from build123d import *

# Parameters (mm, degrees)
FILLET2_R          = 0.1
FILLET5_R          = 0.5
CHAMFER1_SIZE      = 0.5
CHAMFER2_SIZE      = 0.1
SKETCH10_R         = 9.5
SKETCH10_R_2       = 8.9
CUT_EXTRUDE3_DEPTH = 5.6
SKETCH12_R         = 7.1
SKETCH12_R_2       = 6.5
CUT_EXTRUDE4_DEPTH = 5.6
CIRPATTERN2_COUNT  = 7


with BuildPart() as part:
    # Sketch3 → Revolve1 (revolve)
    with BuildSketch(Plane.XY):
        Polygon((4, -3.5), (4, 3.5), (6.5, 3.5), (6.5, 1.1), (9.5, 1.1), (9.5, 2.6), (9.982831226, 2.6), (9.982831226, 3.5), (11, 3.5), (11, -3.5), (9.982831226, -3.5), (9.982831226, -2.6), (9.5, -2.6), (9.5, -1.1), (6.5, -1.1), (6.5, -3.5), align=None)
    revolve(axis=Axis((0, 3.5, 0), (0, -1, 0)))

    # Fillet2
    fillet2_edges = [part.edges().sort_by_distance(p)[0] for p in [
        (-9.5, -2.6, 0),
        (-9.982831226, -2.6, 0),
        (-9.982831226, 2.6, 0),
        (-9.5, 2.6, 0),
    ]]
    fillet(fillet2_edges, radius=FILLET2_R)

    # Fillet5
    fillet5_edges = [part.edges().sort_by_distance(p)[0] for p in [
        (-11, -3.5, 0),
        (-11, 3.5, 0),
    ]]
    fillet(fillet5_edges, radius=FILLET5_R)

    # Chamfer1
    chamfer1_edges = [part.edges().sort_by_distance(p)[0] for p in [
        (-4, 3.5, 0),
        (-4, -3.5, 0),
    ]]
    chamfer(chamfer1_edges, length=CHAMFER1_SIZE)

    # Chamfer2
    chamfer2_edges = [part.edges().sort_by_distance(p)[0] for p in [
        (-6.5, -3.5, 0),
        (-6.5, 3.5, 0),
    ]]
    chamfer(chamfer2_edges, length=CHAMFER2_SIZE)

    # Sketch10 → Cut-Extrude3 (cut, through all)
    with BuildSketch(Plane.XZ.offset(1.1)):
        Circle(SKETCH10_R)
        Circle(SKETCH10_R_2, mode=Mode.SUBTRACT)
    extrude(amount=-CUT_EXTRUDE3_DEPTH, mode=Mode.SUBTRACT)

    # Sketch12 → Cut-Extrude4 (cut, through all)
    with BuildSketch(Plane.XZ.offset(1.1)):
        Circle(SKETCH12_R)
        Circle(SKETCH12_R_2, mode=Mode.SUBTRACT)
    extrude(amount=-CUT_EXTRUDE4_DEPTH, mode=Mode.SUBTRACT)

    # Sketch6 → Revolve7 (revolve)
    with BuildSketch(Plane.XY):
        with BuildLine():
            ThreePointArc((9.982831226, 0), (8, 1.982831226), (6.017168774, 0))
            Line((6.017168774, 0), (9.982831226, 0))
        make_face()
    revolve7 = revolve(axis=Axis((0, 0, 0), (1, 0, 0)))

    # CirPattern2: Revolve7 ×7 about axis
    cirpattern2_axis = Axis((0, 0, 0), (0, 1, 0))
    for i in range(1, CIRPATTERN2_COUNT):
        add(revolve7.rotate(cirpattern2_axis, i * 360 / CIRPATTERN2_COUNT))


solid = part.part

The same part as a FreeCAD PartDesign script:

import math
import FreeCAD as App
import Part
import Sketcher

V = App.Vector
Q = App.Units.Quantity


def edges_at(feature, points):
    """Names of the edges that pass closest to the given points."""
    edges = feature.Shape.Edges
    near = lambda p: min(range(len(edges)), key=lambda i: edges[i].distToShape(Part.Vertex(*p))[0])
    return sorted({f"Edge{near(p) + 1}" for p in points})

doc = App.newDocument("Part")
body = doc.addObject("PartDesign::Body", "Body")
body.AllowCompound = True

# Sketch on XY plane
sketch1 = body.newObject("Sketcher::SketchObject", "Sketch")
sketch1.AttachmentSupport = (doc.getObject("XY_Plane"), [""])
sketch1.MapMode = "FlatFace"
sketch1.addGeometry(Part.LineSegment(V(4, 3.5, 0), V(4, -3.5, 0)), False)
sketch1.addGeometry(Part.LineSegment(V(4, -3.5, 0), V(6.5, -3.5, 0)), False)
sketch1.addGeometry(Part.LineSegment(V(6.5, -3.5, 0), V(6.5, -1.1, 0)), False)
sketch1.addGeometry(Part.LineSegment(V(6.5, -1.1, 0), V(9.5, -1.1, 0)), False)
sketch1.addGeometry(Part.LineSegment(V(9.5, -1.1, 0), V(9.5, -2.6, 0)), False)
sketch1.addGeometry(Part.LineSegment(V(9.5, -2.6, 0), V(9.982831, -2.6, 0)), False)
sketch1.addGeometry(Part.LineSegment(V(9.982831, -2.6, 0), V(9.982831, -3.5, 0)), False)
sketch1.addGeometry(Part.LineSegment(V(9.982831, -3.5, 0), V(11, -3.5, 0)), False)
sketch1.addGeometry(Part.LineSegment(V(11, -3.5, 0), V(11, 3.5, 0)), False)
sketch1.addGeometry(Part.LineSegment(V(11, 3.5, 0), V(9.982831, 3.5, 0)), False)
sketch1.addGeometry(Part.LineSegment(V(9.982831, 3.5, 0), V(9.982831, 2.6, 0)), False)
sketch1.addGeometry(Part.LineSegment(V(9.982831, 2.6, 0), V(9.5, 2.6, 0)), False)
sketch1.addGeometry(Part.LineSegment(V(9.5, 2.6, 0), V(9.5, 1.1, 0)), False)
sketch1.addGeometry(Part.LineSegment(V(9.5, 1.1, 0), V(6.5, 1.1, 0)), False)
sketch1.addGeometry(Part.LineSegment(V(6.5, 1.1, 0), V(6.5, 3.5, 0)), False)
sketch1.addGeometry(Part.LineSegment(V(6.5, 3.5, 0), V(4, 3.5, 0)), False)
sketch1.addConstraint(Sketcher.Constraint("Coincident", 0, 2, 1, 1))
sketch1.addConstraint(Sketcher.Constraint("Coincident", 1, 2, 2, 1))
sketch1.addConstraint(Sketcher.Constraint("Coincident", 2, 2, 3, 1))
sketch1.addConstraint(Sketcher.Constraint("Coincident", 3, 2, 4, 1))
sketch1.addConstraint(Sketcher.Constraint("Coincident", 4, 2, 5, 1))
sketch1.addConstraint(Sketcher.Constraint("Coincident", 5, 2, 6, 1))
sketch1.addConstraint(Sketcher.Constraint("Coincident", 6, 2, 7, 1))
sketch1.addConstraint(Sketcher.Constraint("Coincident", 7, 2, 8, 1))
sketch1.addConstraint(Sketcher.Constraint("Coincident", 8, 2, 9, 1))
sketch1.addConstraint(Sketcher.Constraint("Coincident", 9, 2, 10, 1))
sketch1.addConstraint(Sketcher.Constraint("Coincident", 10, 2, 11, 1))
sketch1.addConstraint(Sketcher.Constraint("Coincident", 11, 2, 12, 1))
sketch1.addConstraint(Sketcher.Constraint("Coincident", 12, 2, 13, 1))
sketch1.addConstraint(Sketcher.Constraint("Coincident", 13, 2, 14, 1))
sketch1.addConstraint(Sketcher.Constraint("Coincident", 14, 2, 15, 1))
sketch1.addConstraint(Sketcher.Constraint("Coincident", 15, 2, 0, 1))
sketch1.addConstraint(Sketcher.Constraint("Vertical", 0))
sketch1.addConstraint(Sketcher.Constraint("Horizontal", 1))
sketch1.addConstraint(Sketcher.Constraint("Vertical", 2))
sketch1.addConstraint(Sketcher.Constraint("Horizontal", 3))
sketch1.addConstraint(Sketcher.Constraint("Vertical", 4))
sketch1.addConstraint(Sketcher.Constraint("Horizontal", 5))
sketch1.addConstraint(Sketcher.Constraint("Vertical", 6))
sketch1.addConstraint(Sketcher.Constraint("Horizontal", 7))
sketch1.addConstraint(Sketcher.Constraint("Vertical", 8))
sketch1.addConstraint(Sketcher.Constraint("Horizontal", 9))
sketch1.addConstraint(Sketcher.Constraint("Vertical", 10))
sketch1.addConstraint(Sketcher.Constraint("Horizontal", 11))
sketch1.addConstraint(Sketcher.Constraint("Vertical", 12))
sketch1.addConstraint(Sketcher.Constraint("Horizontal", 13))
sketch1.addConstraint(Sketcher.Constraint("Vertical", 14))
sketch1.addConstraint(Sketcher.Constraint("Horizontal", 15))
sketch1.addConstraint(Sketcher.Constraint("Symmetric", 6, 2, 9, 2, -1))
sketch1.addConstraint(Sketcher.Constraint("Symmetric", 4, 2, 11, 2, -1))
sketch1.addConstraint(Sketcher.Constraint("Symmetric", 2, 2, 13, 2, -1))
sketch1.addConstraint(Sketcher.Constraint("Horizontal", 1, 2, 6, 2))
sketch1.addConstraint(Sketcher.Constraint("Horizontal", 9, 2, 14, 2))
sketch1.addConstraint(Sketcher.Constraint("DistanceX", 3, 1, 3, 2, Q("3 mm")))
sketch1.addConstraint(Sketcher.Constraint("DistanceY", 0, 2, 0, 1, Q("7 mm")))
sketch1.addConstraint(Sketcher.Constraint("DistanceX", 1, 1, 1, 2, Q("2.5 mm")))
sketch1.addConstraint(Sketcher.Constraint("DistanceY", 2, 1, 2, 2, Q("2.4 mm")))
sketch1.addConstraint(Sketcher.Constraint("DistanceY", 4, 2, 4, 1, Q("1.5 mm")))
sketch1.addConstraint(Sketcher.Constraint("DistanceX", -1, 1, 0, 2, Q("4 mm")))
sketch1.addConstraint(Sketcher.Constraint("DistanceX", -1, 1, 7, 2, Q("11 mm")))
sketch1.addConstraint(Sketcher.Constraint("DistanceX", 5, 1, 5, 2, Q("0.482831 mm")))
revolution = body.newObject("PartDesign::Revolution", "Revolution")
revolution.Profile = sketch1
revolution.ReferenceAxis = (sketch1, ["V_Axis"])
revolution.Angle = 360
doc.recompute()

fillet = body.newObject("PartDesign::Fillet", "Fillet")
fillet.Base = (revolution, edges_at(revolution, [
    (-9.5, -2.6, 0),
    (-9.983, -2.6, 0),
    (-9.983, 2.6, 0),
    (-9.5, 2.6, 0),
]))
fillet.Radius = 0.1
doc.recompute()

fillet2 = body.newObject("PartDesign::Fillet", "Fillet001")
fillet2.Base = (fillet, edges_at(fillet, [(-11, -3.5, 0), (-11, 3.5, 0)]))
fillet2.Radius = 0.5
doc.recompute()

chamfer = body.newObject("PartDesign::Chamfer", "Chamfer")
chamfer.Base = (fillet2, edges_at(fillet2, [(-4, 3.5, 0), (-4, -3.5, 0)]))
chamfer.Size = 0.5
doc.recompute()

chamfer2 = body.newObject("PartDesign::Chamfer", "Chamfer001")
chamfer2.Base = (chamfer, edges_at(chamfer, [(-6.5, -3.5, 0), (-6.5, 3.5, 0)]))
chamfer2.Size = 0.1

# Sketch on XZ plane
sketch2 = body.newObject("Sketcher::SketchObject", "Sketch001")
sketch2.AttachmentSupport = (doc.getObject("XZ_Plane"), [""])
sketch2.MapMode = "FlatFace"
sketch2.AttachmentOffset = App.Placement(V(0, 0, 1.1), App.Rotation())
sketch2.addGeometry(Part.Circle(V(0, 0, 0), V(0, 0, 1), 9.5), False)
sketch2.addGeometry(Part.Circle(V(0, 0, 0), V(0, 0, 1), 8.9), False)
sketch2.addConstraint(Sketcher.Constraint("Coincident", 0, 3, -1, 1))
sketch2.addConstraint(Sketcher.Constraint("Coincident", 1, 3, -1, 1))
sketch2.addConstraint(Sketcher.Constraint("Diameter", 0, Q("19 mm")))
sketch2.addConstraint(Sketcher.Constraint("Diameter", 1, Q("17.8 mm")))
pocket1 = body.newObject("PartDesign::Pocket", "Pocket")
pocket1.Profile = sketch2
pocket1.Type = "ThroughAll"

# Sketch on XZ plane
sketch3 = body.newObject("Sketcher::SketchObject", "Sketch002")
sketch3.AttachmentSupport = (doc.getObject("XZ_Plane"), [""])
sketch3.MapMode = "FlatFace"
sketch3.AttachmentOffset = App.Placement(V(0, 0, 1.1), App.Rotation())
sketch3.addGeometry(Part.Circle(V(0, 0, 0), V(0, 0, 1), 7.1), False)
sketch3.addGeometry(Part.Circle(V(0, 0, 0), V(0, 0, 1), 6.5), False)
sketch3.addConstraint(Sketcher.Constraint("Coincident", 0, 3, -1, 1))
sketch3.addConstraint(Sketcher.Constraint("Coincident", 1, 3, -1, 1))
sketch3.addConstraint(Sketcher.Constraint("Diameter", 1, Q("13 mm")))
sketch3.addConstraint(Sketcher.Constraint("Diameter", 0, Q("14.2 mm")))
pocket2 = body.newObject("PartDesign::Pocket", "Pocket001")
pocket2.Profile = sketch3
pocket2.Type = "ThroughAll"

# Sketch on XY plane
sketch4 = body.newObject("Sketcher::SketchObject", "Sketch003")
sketch4.AttachmentSupport = (doc.getObject("XY_Plane"), [""])
sketch4.MapMode = "FlatFace"
sketch4.addGeometry(Part.ArcOfCircle(Part.Circle(V(8, 0, 0), V(0, 0, 1), 1.982831), math.radians(0), math.radians(180)), False)
sketch4.addGeometry(Part.LineSegment(V(6.017169, 0, 0), V(9.982831, 0, 0)), False)
sketch4.addConstraint(Sketcher.Constraint("Coincident", 0, 1, 1, 2))
sketch4.addConstraint(Sketcher.Constraint("Coincident", 1, 1, 0, 2))
sketch4.addConstraint(Sketcher.Constraint("Horizontal", 1))
sketch4.addConstraint(Sketcher.Constraint("PointOnObject", 0, 3, -1))
sketch4.addConstraint(Sketcher.Constraint("PointOnObject", 0, 1, -1))
sketch4.addConstraint(Sketcher.Constraint("DistanceX", -1, 1, 0, 3, Q("8 mm")))
sketch4.addConstraint(Sketcher.Constraint("Radius", 0, Q("1.982831 mm")))
revolution2 = body.newObject("PartDesign::Revolution", "Revolution001")
revolution2.Profile = sketch4
revolution2.ReferenceAxis = (sketch4, ["H_Axis"])
revolution2.Angle = 360
doc.recompute()

polarpattern = body.newObject("PartDesign::PolarPattern", "PolarPattern")
polarpattern.Originals = [revolution2]
polarpattern.Axis = (doc.getObject("Y_Axis"), [""])
polarpattern.Angle = 360
polarpattern.Occurrences = 7
body.Tip = polarpattern

doc.recompute()
